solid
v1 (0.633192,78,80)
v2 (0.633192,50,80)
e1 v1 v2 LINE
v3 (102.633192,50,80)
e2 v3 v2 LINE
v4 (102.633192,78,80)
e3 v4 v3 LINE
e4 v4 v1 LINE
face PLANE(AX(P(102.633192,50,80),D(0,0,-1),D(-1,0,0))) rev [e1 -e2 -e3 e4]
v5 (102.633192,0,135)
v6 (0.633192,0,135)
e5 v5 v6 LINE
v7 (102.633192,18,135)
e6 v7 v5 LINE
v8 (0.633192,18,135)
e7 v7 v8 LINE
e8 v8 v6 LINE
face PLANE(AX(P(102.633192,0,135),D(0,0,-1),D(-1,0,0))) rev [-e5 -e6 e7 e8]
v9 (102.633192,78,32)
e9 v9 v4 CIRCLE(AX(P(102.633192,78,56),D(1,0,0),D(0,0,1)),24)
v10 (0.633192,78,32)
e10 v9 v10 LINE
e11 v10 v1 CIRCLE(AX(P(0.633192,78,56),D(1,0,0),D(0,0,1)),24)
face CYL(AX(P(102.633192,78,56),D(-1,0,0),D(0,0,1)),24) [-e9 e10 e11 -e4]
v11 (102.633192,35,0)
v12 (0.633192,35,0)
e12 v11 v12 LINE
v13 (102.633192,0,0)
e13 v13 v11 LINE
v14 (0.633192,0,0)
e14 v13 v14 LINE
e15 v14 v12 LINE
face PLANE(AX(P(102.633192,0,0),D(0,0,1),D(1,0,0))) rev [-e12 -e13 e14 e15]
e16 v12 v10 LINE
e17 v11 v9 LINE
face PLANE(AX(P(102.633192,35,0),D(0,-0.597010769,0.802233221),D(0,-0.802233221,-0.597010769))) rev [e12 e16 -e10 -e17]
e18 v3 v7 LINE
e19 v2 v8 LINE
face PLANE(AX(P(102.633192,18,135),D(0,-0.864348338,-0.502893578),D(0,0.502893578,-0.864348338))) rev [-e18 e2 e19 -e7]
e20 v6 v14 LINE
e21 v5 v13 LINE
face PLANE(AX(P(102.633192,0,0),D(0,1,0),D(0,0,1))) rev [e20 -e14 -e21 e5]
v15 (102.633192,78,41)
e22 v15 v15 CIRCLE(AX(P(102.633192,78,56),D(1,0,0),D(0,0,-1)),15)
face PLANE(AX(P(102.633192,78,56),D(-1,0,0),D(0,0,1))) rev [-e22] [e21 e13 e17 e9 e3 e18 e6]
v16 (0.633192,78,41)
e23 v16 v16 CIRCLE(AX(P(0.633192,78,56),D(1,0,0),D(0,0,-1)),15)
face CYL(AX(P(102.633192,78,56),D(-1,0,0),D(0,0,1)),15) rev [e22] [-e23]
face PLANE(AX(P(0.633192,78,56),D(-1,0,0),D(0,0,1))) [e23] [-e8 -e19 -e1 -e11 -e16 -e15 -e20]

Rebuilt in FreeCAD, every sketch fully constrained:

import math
import FreeCAD as App
import Part
import Sketcher

doc = App.newDocument("Part")
body = doc.addObject("PartDesign::Body", "Body")

# Sketch on YZ plane
sketch1 = body.newObject("Sketcher::SketchObject", "Sketch")
sketch1.AttachmentSupport = (doc.getObject("YZ_Plane"), [""])
sketch1.MapMode = "FlatFace"
sketch1.AttachmentOffset = App.Placement(App.Vector(0, 0, 0.633192), App.Rotation())
sketch1.addGeometry(Part.LineSegment(App.Vector(0, 0, 0), App.Vector(35, 0, 0)), False)
sketch1.addGeometry(Part.LineSegment(App.Vector(35, 0, 0), App.Vector(78, 32, 0)), False)
sketch1.addGeometry(Part.ArcOfCircle(Part.Circle(App.Vector(78, 56, 0), App.Vector(0, 0, 1), 24), math.radians(-90), math.radians(90)), False)
sketch1.addGeometry(Part.LineSegment(App.Vector(78, 80, 0), App.Vector(50, 80, 0)), False)
sketch1.addGeometry(Part.LineSegment(App.Vector(50, 80, 0), App.Vector(18, 135, 0)), False)
sketch1.addGeometry(Part.LineSegment(App.Vector(18, 135, 0), App.Vector(0, 135, 0)), False)
sketch1.addGeometry(Part.LineSegment(App.Vector(0, 135, 0), App.Vector(0, 0, 0)), False)
sketch1.addGeometry(Part.Circle(App.Vector(78, 56, 0), App.Vector(0, 0, 1), 15), False)
sketch1.addConstraint(Sketcher.Constraint("Coincident", 0, 2, 1, 1))
sketch1.addConstraint(Sketcher.Constraint("Coincident", 1, 2, 2, 1))
sketch1.addConstraint(Sketcher.Constraint("Tangent", 2, 2, 3, 1))
sketch1.addConstraint(Sketcher.Constraint("Coincident", 3, 2, 4, 1))
sketch1.addConstraint(Sketcher.Constraint("Coincident", 4, 2, 5, 1))
sketch1.addConstraint(Sketcher.Constraint("Coincident", 5, 2, 6, 1))
sketch1.addConstraint(Sketcher.Constraint("Coincident", 6, 2, 0, 1))
sketch1.addConstraint(Sketcher.Constraint("Horizontal", 0))
sketch1.addConstraint(Sketcher.Constraint("Horizontal", 3))
sketch1.addConstraint(Sketcher.Constraint("Horizontal", 5))
sketch1.addConstraint(Sketcher.Constraint("Vertical", 6))
sketch1.addConstraint(Sketcher.Constraint("Coincident", 6, 2, -1, 1))
sketch1.addConstraint(Sketcher.Constraint("Coincident", 7, 3, 2, 3))
sketch1.addConstraint(Sketcher.Constraint("Vertical", 7, 3, 1, 2))
sketch1.addConstraint(Sketcher.Constraint("Diameter", 7, 30.0))
sketch1.addConstraint(Sketcher.Constraint("Radius", 2, 24.0))
sketch1.addConstraint(Sketcher.Constraint("DistanceX", 0, 1, 0, 2, 35.0))
sketch1.addConstraint(Sketcher.Constraint("DistanceX", 3, 2, 3, 1, 28.0))
sketch1.addConstraint(Sketcher.Constraint("DistanceX", 5, 2, 5, 1, 18.0))
sketch1.addConstraint(Sketcher.Constraint("DistanceY", 6, 2, 6, 1, 135.0))
sketch1.addConstraint(Sketcher.Constraint("DistanceX", -1, 1, 2, 3, 78.0))
sketch1.addConstraint(Sketcher.Constraint("DistanceY", -1, 1, 2, 3, 56.0))
pad1 = body.newObject("PartDesign::Pad", "Pad")
pad1.Profile = sketch1
pad1.Length = 102

doc.recompute()
